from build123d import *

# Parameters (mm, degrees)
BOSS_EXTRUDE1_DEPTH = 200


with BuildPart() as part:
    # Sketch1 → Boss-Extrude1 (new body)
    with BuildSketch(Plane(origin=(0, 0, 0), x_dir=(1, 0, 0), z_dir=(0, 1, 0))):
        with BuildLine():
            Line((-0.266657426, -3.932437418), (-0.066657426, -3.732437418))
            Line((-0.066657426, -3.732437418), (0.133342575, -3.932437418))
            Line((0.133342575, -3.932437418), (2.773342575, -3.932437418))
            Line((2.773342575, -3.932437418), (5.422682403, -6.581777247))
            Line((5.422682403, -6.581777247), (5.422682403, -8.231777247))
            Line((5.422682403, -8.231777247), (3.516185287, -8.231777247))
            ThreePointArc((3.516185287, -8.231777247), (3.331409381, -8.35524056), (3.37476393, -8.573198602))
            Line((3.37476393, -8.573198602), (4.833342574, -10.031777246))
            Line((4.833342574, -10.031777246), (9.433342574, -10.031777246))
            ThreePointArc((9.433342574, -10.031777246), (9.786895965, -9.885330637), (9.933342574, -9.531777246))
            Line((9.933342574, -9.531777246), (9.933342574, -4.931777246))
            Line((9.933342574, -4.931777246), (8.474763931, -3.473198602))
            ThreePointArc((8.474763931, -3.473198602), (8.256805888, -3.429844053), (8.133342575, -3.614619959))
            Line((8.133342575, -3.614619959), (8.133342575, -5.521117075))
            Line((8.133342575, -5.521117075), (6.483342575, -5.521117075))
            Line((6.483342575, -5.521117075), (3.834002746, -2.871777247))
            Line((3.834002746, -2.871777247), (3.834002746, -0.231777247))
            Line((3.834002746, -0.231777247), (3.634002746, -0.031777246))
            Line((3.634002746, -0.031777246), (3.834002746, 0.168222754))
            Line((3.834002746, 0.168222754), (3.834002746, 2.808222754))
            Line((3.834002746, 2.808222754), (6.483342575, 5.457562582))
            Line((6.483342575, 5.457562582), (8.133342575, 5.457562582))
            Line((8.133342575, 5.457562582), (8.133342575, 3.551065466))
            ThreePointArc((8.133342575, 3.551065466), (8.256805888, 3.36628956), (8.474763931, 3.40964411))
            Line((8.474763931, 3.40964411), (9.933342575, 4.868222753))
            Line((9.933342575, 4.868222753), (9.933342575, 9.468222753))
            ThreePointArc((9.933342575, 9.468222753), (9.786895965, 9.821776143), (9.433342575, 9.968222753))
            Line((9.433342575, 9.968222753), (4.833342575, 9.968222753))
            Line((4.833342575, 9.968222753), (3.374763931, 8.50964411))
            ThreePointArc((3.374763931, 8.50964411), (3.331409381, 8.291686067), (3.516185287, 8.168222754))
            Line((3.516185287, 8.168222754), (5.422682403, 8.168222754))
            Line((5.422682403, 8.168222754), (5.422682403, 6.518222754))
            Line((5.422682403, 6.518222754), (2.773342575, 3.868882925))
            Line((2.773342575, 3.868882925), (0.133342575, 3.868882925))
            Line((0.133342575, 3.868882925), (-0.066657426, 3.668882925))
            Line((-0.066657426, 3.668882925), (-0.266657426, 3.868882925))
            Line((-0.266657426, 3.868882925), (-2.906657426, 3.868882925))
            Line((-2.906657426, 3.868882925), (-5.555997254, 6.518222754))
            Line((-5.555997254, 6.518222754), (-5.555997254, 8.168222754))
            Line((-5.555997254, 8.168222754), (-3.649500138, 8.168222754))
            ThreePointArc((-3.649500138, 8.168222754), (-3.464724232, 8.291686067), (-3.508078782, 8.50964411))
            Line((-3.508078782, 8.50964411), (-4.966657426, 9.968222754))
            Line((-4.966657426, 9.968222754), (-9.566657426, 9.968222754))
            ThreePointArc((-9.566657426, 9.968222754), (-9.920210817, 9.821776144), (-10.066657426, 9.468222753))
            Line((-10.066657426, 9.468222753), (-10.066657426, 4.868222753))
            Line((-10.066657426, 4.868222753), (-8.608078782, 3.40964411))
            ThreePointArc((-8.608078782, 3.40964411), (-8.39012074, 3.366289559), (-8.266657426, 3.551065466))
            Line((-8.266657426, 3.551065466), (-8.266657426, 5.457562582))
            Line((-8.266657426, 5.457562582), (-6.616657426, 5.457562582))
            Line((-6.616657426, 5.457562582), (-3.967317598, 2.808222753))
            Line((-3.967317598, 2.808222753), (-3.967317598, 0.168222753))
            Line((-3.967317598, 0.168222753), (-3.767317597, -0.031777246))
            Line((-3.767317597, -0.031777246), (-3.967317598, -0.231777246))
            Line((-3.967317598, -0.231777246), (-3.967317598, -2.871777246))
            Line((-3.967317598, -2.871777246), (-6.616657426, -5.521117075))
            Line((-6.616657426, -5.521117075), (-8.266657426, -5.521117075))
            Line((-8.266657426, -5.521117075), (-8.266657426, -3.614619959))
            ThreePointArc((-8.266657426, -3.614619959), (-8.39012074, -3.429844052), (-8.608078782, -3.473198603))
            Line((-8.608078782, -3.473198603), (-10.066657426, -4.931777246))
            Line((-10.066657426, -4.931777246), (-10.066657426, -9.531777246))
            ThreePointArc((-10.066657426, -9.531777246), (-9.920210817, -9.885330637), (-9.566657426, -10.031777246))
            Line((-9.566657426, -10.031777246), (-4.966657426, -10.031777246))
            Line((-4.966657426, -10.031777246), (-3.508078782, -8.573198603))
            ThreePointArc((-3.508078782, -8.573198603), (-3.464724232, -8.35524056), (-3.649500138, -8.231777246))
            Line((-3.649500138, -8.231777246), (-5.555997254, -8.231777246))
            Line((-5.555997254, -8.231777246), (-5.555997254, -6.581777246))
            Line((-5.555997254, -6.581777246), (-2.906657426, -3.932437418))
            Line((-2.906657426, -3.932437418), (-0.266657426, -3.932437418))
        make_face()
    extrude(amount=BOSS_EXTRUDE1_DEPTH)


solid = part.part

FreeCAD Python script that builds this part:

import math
import FreeCAD as App
import Part
import Sketcher

V = App.Vector
Q = App.Units.Quantity

doc = App.newDocument("Part")
body = doc.addObject("PartDesign::Body", "Body")

# Sketch on XZ plane
sketch1 = body.newObject("Sketcher::SketchObject", "Sketch")
sketch1.AttachmentSupport = (doc.getObject("XZ_Plane"), [""])
sketch1.MapMode = "FlatFace"
sketch1.addGeometry(Part.LineSegment(V(-0.27, 3.93, 0), V(-0.07, 3.73, 0)), False)
sketch1.addGeometry(Part.LineSegment(V(-0.07, 3.73, 0), V(0.13, 3.93, 0)), False)
sketch1.addGeometry(Part.LineSegment(V(0.13, 3.93, 0), V(2.77, 3.93, 0)), False)
sketch1.addGeometry(Part.LineSegment(V(2.77, 3.93, 0), V(5.42, 6.58, 0)), False)
sketch1.addGeometry(Part.LineSegment(V(5.42, 6.58, 0), V(5.42, 8.23, 0)), False)
sketch1.addGeometry(Part.LineSegment(V(5.42, 8.23, 0), V(3.52, 8.23, 0)), False)
sketch1.addGeometry(Part.ArcOfCircle(Part.Circle(V(3.52, 8.43, 0), V(0, 0, 1), 0.2), math.radians(135), math.radians(270)), False)
sketch1.addGeometry(Part.LineSegment(V(3.37, 8.57, 0), V(4.83, 10.03, 0)), False)
sketch1.addGeometry(Part.LineSegment(V(4.83, 10.03, 0), V(9.43, 10.03, 0)), False)
sketch1.addGeometry(Part.ArcOfCircle(Part.Circle(V(9.43, 9.53, 0), V(0, 0, 1), 0.5), math.radians(0), math.radians(90)), False)
sketch1.addGeometry(Part.LineSegment(V(9.93, 9.53, 0), V(9.93, 4.93, 0)), False)
sketch1.addGeometry(Part.LineSegment(V(9.93, 4.93, 0), V(8.47, 3.47, 0)), False)
sketch1.addGeometry(Part.ArcOfCircle(Part.Circle(V(8.33, 3.61, 0), V(0, 0, 1), 0.2), math.radians(-180), math.radians(-45)), False)
sketch1.addGeometry(Part.LineSegment(V(8.13, 3.61, 0), V(8.13, 5.52, 0)), False)
sketch1.addGeometry(Part.LineSegment(V(8.13, 5.52, 0), V(6.48, 5.52, 0)), False)
sketch1.addGeometry(Part.LineSegment(V(6.48, 5.52, 0), V(3.83, 2.87, 0)), False)
sketch1.addGeometry(Part.LineSegment(V(3.83, 2.87, 0), V(3.83, 0.23, 0)), False)
sketch1.addGeometry(Part.LineSegment(V(3.83, 0.23, 0), V(3.63, 0.03, 0)), False)
sketch1.addGeometry(Part.LineSegment(V(3.63, 0.03, 0), V(3.83, -0.17, 0)), False)
sketch1.addGeometry(Part.LineSegment(V(3.83, -0.17, 0), V(3.83, -2.81, 0)), False)
sketch1.addGeometry(Part.LineSegment(V(3.83, -2.81, 0), V(6.48, -5.46, 0)), False)
sketch1.addGeometry(Part.LineSegment(V(6.48, -5.46, 0), V(8.13, -5.46, 0)), False)
sketch1.addGeometry(Part.LineSegment(V(8.13, -5.46, 0), V(8.13, -3.55, 0)), False)
sketch1.addGeometry(Part.ArcOfCircle(Part.Circle(V(8.33, -3.55, 0), V(0, 0, 1), 0.2), math.radians(45), math.radians(180)), False)
sketch1.addGeometry(Part.LineSegment(V(8.47, -3.41, 0), V(9.93, -4.87, 0)), False)
sketch1.addGeometry(Part.LineSegment(V(9.93, -4.87, 0), V(9.93, -9.47, 0)), False)
sketch1.addGeometry(Part.ArcOfCircle(Part.Circle(V(9.43, -9.47, 0), V(0, 0, 1), 0.5), math.radians(-90), math.radians(0)), False)
sketch1.addGeometry(Part.LineSegment(V(9.43, -9.97, 0), V(4.83, -9.97, 0)), False)
sketch1.addGeometry(Part.LineSegment(V(4.83, -9.97, 0), V(3.37, -8.51, 0)), False)
sketch1.addGeometry(Part.ArcOfCircle(Part.Circle(V(3.52, -8.37, 0), V(0, 0, 1), 0.2), math.radians(90), math.radians(225)), False)
sketch1.addGeometry(Part.LineSegment(V(3.52, -8.17, 0), V(5.42, -8.17, 0)), False)
sketch1.addGeometry(Part.LineSegment(V(5.42, -8.17, 0), V(5.42, -6.52, 0)), False)
sketch1.addGeometry(Part.LineSegment(V(5.42, -6.52, 0), V(2.77, -3.87, 0)), False)
sketch1.addGeometry(Part.LineSegment(V(2.77, -3.87, 0), V(0.13, -3.87, 0)), False)
sketch1.addGeometry(Part.LineSegment(V(0.13, -3.87, 0), V(-0.07, -3.67, 0)), False)
sketch1.addGeometry(Part.LineSegment(V(-0.07, -3.67, 0), V(-0.27, -3.87, 0)), False)
sketch1.addGeometry(Part.LineSegment(V(-0.27, -3.87, 0), V(-2.91, -3.87, 0)), False)
sketch1.addGeometry(Part.LineSegment(V(-2.91, -3.87, 0), V(-5.56, -6.52, 0)), False)
sketch1.addGeometry(Part.LineSegment(V(-5.56, -6.52, 0), V(-5.56, -8.17, 0)), False)
sketch1.addGeometry(Part.LineSegment(V(-5.56, -8.17, 0), V(-3.65, -8.17, 0)), False)
sketch1.addGeometry(Part.ArcOfCircle(Part.Circle(V(-3.65, -8.37, 0), V(0, 0, 1), 0.2), math.radians(-45), math.radians(90)), False)
sketch1.addGeometry(Part.LineSegment(V(-3.51, -8.51, 0), V(-4.97, -9.97, 0)), False)
sketch1.addGeometry(Part.LineSegment(V(-4.97, -9.97, 0), V(-9.57, -9.97, 0)), False)
sketch1.addGeometry(Part.ArcOfCircle(Part.Circle(V(-9.57, -9.47, 0), V(0, 0, 1), 0.5), math.radians(180), math.radians(270)), False)
sketch1.addGeometry(Part.LineSegment(V(-10.07, -9.47, 0), V(-10.07, -4.87, 0)), False)
sketch1.addGeometry(Part.LineSegment(V(-10.07, -4.87, 0), V(-8.61, -3.41, 0)), False)
sketch1.addGeometry(Part.ArcOfCircle(Part.Circle(V(-8.47, -3.55, 0), V(0, 0, 1), 0.2), math.radians(0), math.radians(135)), False)
sketch1.addGeometry(Part.LineSegment(V(-8.27, -3.55, 0), V(-8.27, -5.46, 0)), False)
sketch1.addGeometry(Part.LineSegment(V(-8.27, -5.46, 0), V(-6.62, -5.46, 0)), False)
sketch1.addGeometry(Part.LineSegment(V(-6.62, -5.46, 0), V(-3.97, -2.81, 0)), False)
sketch1.addGeometry(Part.LineSegment(V(-3.97, -2.81, 0), V(-3.97, -0.17, 0)), False)
sketch1.addGeometry(Part.LineSegment(V(-3.97, -0.17, 0), V(-3.77, 0.03, 0)), False)
sketch1.addGeometry(Part.LineSegment(V(-3.77, 0.03, 0), V(-3.97, 0.23, 0)), False)
sketch1.addGeometry(Part.LineSegment(V(-3.97, 0.23, 0), V(-3.97, 2.87, 0)), False)
sketch1.addGeometry(Part.LineSegment(V(-3.97, 2.87, 0), V(-6.62, 5.52, 0)), False)
sketch1.addGeometry(Part.LineSegment(V(-6.62, 5.52, 0), V(-8.27, 5.52, 0)), False)
sketch1.addGeometry(Part.LineSegment(V(-8.27, 5.52, 0), V(-8.27, 3.61, 0)), False)
sketch1.addGeometry(Part.ArcOfCircle(Part.Circle(V(-8.47, 3.61, 0), V(0, 0, 1), 0.2), math.radians(-135), math.radians(0)), False)
sketch1.addGeometry(Part.LineSegment(V(-8.61, 3.47, 0), V(-10.07, 4.93, 0)), False)
sketch1.addGeometry(Part.LineSegment(V(-10.07, 4.93, 0), V(-10.07, 9.53, 0)), False)
sketch1.addGeometry(Part.ArcOfCircle(Part.Circle(V(-9.57, 9.53, 0), V(0, 0, 1), 0.5), math.radians(90), math.radians(180)), False)
sketch1.addGeometry(Part.LineSegment(V(-9.57, 10.03, 0), V(-4.97, 10.03, 0)), False)
sketch1.addGeometry(Part.LineSegment(V(-4.97, 10.03, 0), V(-3.51, 8.57, 0)), False)
sketch1.addGeometry(Part.ArcOfCircle(Part.Circle(V(-3.65, 8.43, 0), V(0, 0, 1), 0.2), math.radians(-90), math.radians(45)), False)
sketch1.addGeometry(Part.LineSegment(V(-3.65, 8.23, 0), V(-5.56, 8.23, 0)), False)
sketch1.addGeometry(Part.LineSegment(V(-5.56, 8.23, 0), V(-5.56, 6.58, 0)), False)
sketch1.addGeometry(Part.LineSegment(V(-5.56, 6.58, 0), V(-2.91, 3.93, 0)), False)
sketch1.addGeometry(Part.LineSegment(V(-2.91, 3.93, 0), V(-0.27, 3.93, 0)), False)
sketch1.addConstraint(Sketcher.Constraint("Coincident", 0, 2, 1, 1))
sketch1.addConstraint(Sketcher.Constraint("Coincident", 1, 2, 2, 1))
sketch1.addConstraint(Sketcher.Constraint("Coincident", 2, 2, 3, 1))
sketch1.addConstraint(Sketcher.Constraint("Coincident", 3, 2, 4, 1))
sketch1.addConstraint(Sketcher.Constraint("Coincident", 4, 2, 5, 1))
sketch1.addConstraint(Sketcher.Constraint("Tangent", 5, 2, 6, 2))
sketch1.addConstraint(Sketcher.Constraint("Tangent", 6, 1, 7, 1))
sketch1.addConstraint(Sketcher.Constraint("Coincident", 7, 2, 8, 1))
sketch1.addConstraint(Sketcher.Constraint("Tangent", 8, 2, 9, 2))
sketch1.addConstraint(Sketcher.Constraint("Tangent", 9, 1, 10, 1))
sketch1.addConstraint(Sketcher.Constraint("Coincident", 10, 2, 11, 1))
sketch1.addConstraint(Sketcher.Constraint("Tangent", 11, 2, 12, 2))
sketch1.addConstraint(Sketcher.Constraint("Tangent", 12, 1, 13, 1))
sketch1.addConstraint(Sketcher.Constraint("Coincident", 13, 2, 14, 1))
sketch1.addConstraint(Sketcher.Constraint("Coincident", 14, 2, 15, 1))
sketch1.addConstraint(Sketcher.Constraint("Coincident", 15, 2, 16, 1))
sketch1.addConstraint(Sketcher.Constraint("Coincident", 16, 2, 17, 1))
sketch1.addConstraint(Sketcher.Constraint("Coincident", 17, 2, 18, 1))
sketch1.addConstraint(Sketcher.Constraint("Coincident", 18, 2, 19, 1))
sketch1.addConstraint(Sketcher.Constraint("Coincident", 19, 2, 20, 1))
sketch1.addConstraint(Sketcher.Constraint("Coincident", 20, 2, 21, 1))
sketch1.addConstraint(Sketcher.Constraint("Coincident", 21, 2, 22, 1))
sketch1.addConstraint(Sketcher.Constraint("Tangent", 22, 2, 23, 2))
sketch1.addConstraint(Sketcher.Constraint("Tangent", 23, 1, 24, 1))
sketch1.addConstraint(Sketcher.Constraint("Coincident", 24, 2, 25, 1))
sketch1.addConstraint(Sketcher.Constraint("Tangent", 25, 2, 26, 2))
sketch1.addConstraint(Sketcher.Constraint("Tangent", 26, 1, 27, 1))
sketch1.addConstraint(Sketcher.Constraint("Coincident", 27, 2, 28, 1))
sketch1.addConstraint(Sketcher.Constraint("Tangent", 28, 2, 29, 2))
sketch1.addConstraint(Sketcher.Constraint("Tangent", 29, 1, 30, 1))
sketch1.addConstraint(Sketcher.Constraint("Coincident", 30, 2, 31, 1))
sketch1.addConstraint(Sketcher.Constraint("Coincident", 31, 2, 32, 1))
sketch1.addConstraint(Sketcher.Constraint("Coincident", 32, 2, 33, 1))
sketch1.addConstraint(Sketcher.Constraint("Coincident", 33, 2, 34, 1))
sketch1.addConstraint(Sketcher.Constraint("Coincident", 34, 2, 35, 1))
sketch1.addConstraint(Sketcher.Constraint("Coincident", 35, 2, 36, 1))
sketch1.addConstraint(Sketcher.Constraint("Coincident", 36, 2, 37, 1))
sketch1.addConstraint(Sketcher.Constraint("Coincident", 37, 2, 38, 1))
sketch1.addConstraint(Sketcher.Constraint("Coincident", 38, 2, 39, 1))
sketch1.addConstraint(Sketcher.Constraint("Tangent", 39, 2, 40, 2))
sketch1.addConstraint(Sketcher.Constraint("Tangent", 40, 1, 41, 1))
sketch1.addConstraint(Sketcher.Constraint("Coincident", 41, 2, 42, 1))
sketch1.addConstraint(Sketcher.Constraint("Tangent", 42, 2, 43, 2))
sketch1.addConstraint(Sketcher.Constraint("Tangent", 43, 1, 44, 1))
sketch1.addConstraint(Sketcher.Constraint("Coincident", 44, 2, 45, 1))
sketch1.addConstraint(Sketcher.Constraint("Tangent", 45, 2, 46, 2))
sketch1.addConstraint(Sketcher.Constraint("Tangent", 46, 1, 47, 1))
sketch1.addConstraint(Sketcher.Constraint("Coincident", 47, 2, 48, 1))
sketch1.addConstraint(Sketcher.Constraint("Coincident", 48, 2, 49, 1))
sketch1.addConstraint(Sketcher.Constraint("Coincident", 49, 2, 50, 1))
sketch1.addConstraint(Sketcher.Constraint("Coincident", 50, 2, 51, 1))
sketch1.addConstraint(Sketcher.Constraint("Coincident", 51, 2, 52, 1))
sketch1.addConstraint(Sketcher.Constraint("Coincident", 52, 2, 53, 1))
sketch1.addConstraint(Sketcher.Constraint("Coincident", 53, 2, 54, 1))
sketch1.addConstraint(Sketcher.Constraint("Coincident", 54, 2, 55, 1))
sketch1.addConstraint(Sketcher.Constraint("Coincident", 55, 2, 56, 1))
sketch1.addConstraint(Sketcher.Constraint("Tangent", 56, 2, 57, 2))
sketch1.addConstraint(Sketcher.Constraint("Tangent", 57, 1, 58, 1))
sketch1.addConstraint(Sketcher.Constraint("Coincident", 58, 2, 59, 1))
sketch1.addConstraint(Sketcher.Constraint("Tangent", 59, 2, 60, 2))
sketch1.addConstraint(Sketcher.Constraint("Tangent", 60, 1, 61, 1))
sketch1.addConstraint(Sketcher.Constraint("Coincident", 61, 2, 62, 1))
sketch1.addConstraint(Sketcher.Constraint("Tangent", 62, 2, 63, 2))
sketch1.addConstraint(Sketcher.Constraint("Tangent", 63, 1, 64, 1))
sketch1.addConstraint(Sketcher.Constraint("Coincident", 64, 2, 65, 1))
sketch1.addConstraint(Sketcher.Constraint("Coincident", 65, 2, 66, 1))
sketch1.addConstraint(Sketcher.Constraint("Coincident", 66, 2, 67, 1))
sketch1.addConstraint(Sketcher.Constraint("Coincident", 67, 2, 0, 1))
sketch1.addConstraint(Sketcher.Constraint("Horizontal", 2))
sketch1.addConstraint(Sketcher.Constraint("Vertical", 4))
sketch1.addConstraint(Sketcher.Constraint("Horizontal", 5))
sketch1.addConstraint(Sketcher.Constraint("Horizontal", 8))
sketch1.addConstraint(Sketcher.Constraint("Vertical", 10))
sketch1.addConstraint(Sketcher.Constraint("Vertical", 13))
sketch1.addConstraint(Sketcher.Constraint("Horizontal", 14))
sketch1.addConstraint(Sketcher.Constraint("Vertical", 16))
sketch1.addConstraint(Sketcher.Constraint("Vertical", 19))
sketch1.addConstraint(Sketcher.Constraint("Horizontal", 21))
sketch1.addConstraint(Sketcher.Constraint("Vertical", 22))
sketch1.addConstraint(Sketcher.Constraint("Vertical", 25))
sketch1.addConstraint(Sketcher.Constraint("Horizontal", 27))
sketch1.addConstraint(Sketcher.Constraint("Horizontal", 30))
sketch1.addConstraint(Sketcher.Constraint("Vertical", 31))
sketch1.addConstraint(Sketcher.Constraint("Horizontal", 33))
sketch1.addConstraint(Sketcher.Constraint("Horizontal", 36))
sketch1.addConstraint(Sketcher.Constraint("Vertical", 38))
sketch1.addConstraint(Sketcher.Constraint("Horizontal", 39))
sketch1.addConstraint(Sketcher.Constraint("Horizontal", 42))
sketch1.addConstraint(Sketcher.Constraint("Vertical", 44))
sketch1.addConstraint(Sketcher.Constraint("Vertical", 47))
sketch1.addConstraint(Sketcher.Constraint("Horizontal", 48))
sketch1.addConstraint(Sketcher.Constraint("Vertical", 50))
sketch1.addConstraint(Sketcher.Constraint("Vertical", 53))
sketch1.addConstraint(Sketcher.Constraint("Horizontal", 55))
sketch1.addConstraint(Sketcher.Constraint("Vertical", 56))
sketch1.addConstraint(Sketcher.Constraint("Vertical", 59))
sketch1.addConstraint(Sketcher.Constraint("Horizontal", 61))
sketch1.addConstraint(Sketcher.Constraint("Horizontal", 64))
sketch1.addConstraint(Sketcher.Constraint("Vertical", 65))
sketch1.addConstraint(Sketcher.Constraint("Horizontal", 67))
sketch1.addConstraint(Sketcher.Constraint("Equal", 6, 12))
sketch1.addConstraint(Sketcher.Constraint("Equal", 12, 23))
sketch1.addConstraint(Sketcher.Constraint("Equal", 9, 26))
sketch1.addConstraint(Sketcher.Constraint("Equal", 23, 29))
sketch1.addConstraint(Sketcher.Constraint("Equal", 29, 40))
sketch1.addConstraint(Sketcher.Constraint("Equal", 26, 43))
sketch1.addConstraint(Sketcher.Constraint("Equal", 40, 46))
sketch1.addConstraint(Sketcher.Constraint("Equal", 46, 57))
sketch1.addConstraint(Sketcher.Constraint("Equal", 43, 60))
sketch1.addConstraint(Sketcher.Constraint("Equal", 57, 63))
sketch1.addConstraint(Sketcher.Constraint("Perpendicular", 0, 1))
sketch1.addConstraint(Sketcher.Constraint("Parallel", 1, 3))
sketch1.addConstraint(Sketcher.Constraint("Parallel", 3, 7))
sketch1.addConstraint(Sketcher.Constraint("Parallel", 7, 11))
sketch1.addConstraint(Sketcher.Constraint("Parallel", 11, 15))
sketch1.addConstraint(Sketcher.Constraint("Parallel", 15, 17))
sketch1.addConstraint(Sketcher.Constraint("Perpendicular", 17, 18))
sketch1.addConstraint(Sketcher.Constraint("Parallel", 18, 20))
sketch1.addConstraint(Sketcher.Constraint("Parallel", 20, 24))
sketch1.addConstraint(Sketcher.Constraint("Parallel", 24, 28))
sketch1.addConstraint(Sketcher.Constraint("Parallel", 28, 32))
sketch1.addConstraint(Sketcher.Constraint("Parallel", 32, 34))
sketch1.addConstraint(Sketcher.Constraint("Perpendicular", 34, 35))
sketch1.addConstraint(Sketcher.Constraint("Parallel", 35, 37))
sketch1.addConstraint(Sketcher.Constraint("Parallel", 37, 41))
sketch1.addConstraint(Sketcher.Constraint("Parallel", 41, 45))
sketch1.addConstraint(Sketcher.Constraint("Parallel", 45, 49))
sketch1.addConstraint(Sketcher.Constraint("Parallel", 49, 51))
sketch1.addConstraint(Sketcher.Constraint("Perpendicular", 51, 52))
sketch1.addConstraint(Sketcher.Constraint("Parallel", 52, 54))
sketch1.addConstraint(Sketcher.Constraint("Parallel", 54, 58))
sketch1.addConstraint(Sketcher.Constraint("Parallel", 58, 62))
sketch1.addConstraint(Sketcher.Constraint("Parallel", 62, 66))
sketch1.addConstraint(Sketcher.Constraint("Horizontal", 29, 3, 40, 3))
sketch1.addConstraint(Sketcher.Constraint("Horizontal", 26, 3, 43, 3))
sketch1.addConstraint(Sketcher.Constraint("Horizontal", 23, 3, 46, 3))
sketch1.addConstraint(Sketcher.Constraint("Horizontal", 12, 3, 57, 3))
sketch1.addConstraint(Sketcher.Constraint("Horizontal", 9, 3, 60, 3))
sketch1.addConstraint(Sketcher.Constraint("Horizontal", 6, 3, 63, 3))
sketch1.addConstraint(Sketcher.Constraint("Horizontal", 33, 2, 35, 2))
sketch1.addConstraint(Sketcher.Constraint("Horizontal", 31, 2, 37, 2))
sketch1.addConstraint(Sketcher.Constraint("Horizontal", 28, 2, 40, 1))
sketch1.addConstraint(Sketcher.Constraint("Horizontal", 24, 2, 44, 2))
sketch1.addConstraint(Sketcher.Constraint("Horizontal", 21, 2, 47, 2))
sketch1.addConstraint(Sketcher.Constraint("Horizontal", 19, 2, 49, 2))
sketch1.addConstraint(Sketcher.Constraint("Horizontal", 18, 2, 50, 2))
sketch1.addConstraint(Sketcher.Constraint("Horizontal", 17, 2, 51, 2))
sketch1.addConstraint(Sketcher.Constraint("Horizontal", 16, 2, 52, 2))
sketch1.addConstraint(Sketcher.Constraint("Horizontal", 15, 2, 53, 2))
sketch1.addConstraint(Sketcher.Constraint("Horizontal", 14, 2, 54, 2))
sketch1.addConstraint(Sketcher.Constraint("Horizontal", 10, 2, 58, 2))
sketch1.addConstraint(Sketcher.Constraint("Horizontal", 3, 2, 65, 2))
sketch1.addConstraint(Sketcher.Constraint("Horizontal", 2, 2, 66, 2))
sketch1.addConstraint(Sketcher.Constraint("Vertical", 12, 3, 23, 3))
sketch1.addConstraint(Sketcher.Constraint("Vertical", 9, 3, 26, 3))
sketch1.addConstraint(Sketcher.Constraint("Vertical", 6, 3, 29, 3))
sketch1.addConstraint(Sketcher.Constraint("Vertical", 46, 3, 57, 3))
sketch1.addConstraint(Sketcher.Constraint("Vertical", 40, 3, 63, 3))
sketch1.addConstraint(Sketcher.Constraint("Vertical", 16, 2, 18, 2))
sketch1.addConstraint(Sketcher.Constraint("Vertical", 14, 2, 20, 2))
sketch1.addConstraint(Sketcher.Constraint("Vertical", 7, 2, 27, 2))
sketch1.addConstraint(Sketcher.Constraint("Vertical", 4, 2, 30, 2))
sketch1.addConstraint(Sketcher.Constraint("Vertical", 2, 2, 32, 2))
sketch1.addConstraint(Sketcher.Constraint("Vertical", 1, 2, 33, 2))
sketch1.addConstraint(Sketcher.Constraint("Vertical", 0, 2, 34, 2))
sketch1.addConstraint(Sketcher.Constraint("Vertical", 38, 2, 64, 2))
sketch1.addConstraint(Sketcher.Constraint("Equal", 33, 36))
sketch1.addConstraint(Sketcher.Constraint("Equal", 30, 39))
sketch1.addConstraint(Sketcher.Constraint("Equal", 27, 42))
sketch1.addConstraint(Sketcher.Constraint("Equal", 21, 48))
sketch1.addConstraint(Sketcher.Constraint("Equal", 55, 4))
sketch1.addConstraint(Sketcher.Constraint("Equal", 61, 10))
sketch1.addConstraint(Sketcher.Constraint("Equal", 64, 13))
sketch1.addConstraint(Sketcher.Constraint("Equal", 67, 16))
sketch1.addConstraint(Sketcher.Constraint("Equal", 16, 19))
sketch1.addConstraint(Sketcher.Constraint("Equal", 13, 22))
sketch1.addConstraint(Sketcher.Constraint("Equal", 10, 25))
sketch1.addConstraint(Sketcher.Constraint("Equal", 4, 31))
sketch1.addConstraint(Sketcher.Constraint("Equal", 7, 11))
sketch1.addConstraint(Sketcher.Constraint("Equal", 3, 15))
sketch1.addConstraint(Sketcher.Constraint("Equal", 1, 17))
sketch1.addConstraint(Sketcher.Constraint("Radius", 6, Q("0.2 mm")))
sketch1.addConstraint(Sketcher.Constraint("Radius", 9, Q("0.5 mm")))
sketch1.addConstraint(Sketcher.Constraint("DistanceX", 8, 1, 8, 2, Q("4.6 mm")))
sketch1.addConstraint(Sketcher.Constraint("DistanceX", 2, 1, 2, 2, Q("2.64 mm")))
sketch1.addConstraint(Sketcher.Constraint("DistanceX", 14, 2, 14, 1, Q("1.65 mm")))
sketch1.addConstraint(Sketcher.Constraint("DistanceX", 40, 3, -1, 1, Q("3.6495 mm")))
sketch1.addConstraint(Sketcher.Constraint("DistanceY", -1, 1, 6, 1, Q("8.573199 mm")))
sketch1.addConstraint(Sketcher.Constraint("Distance", 7, Q("2.062742 mm")))
sketch1.addConstraint(Sketcher.Constraint("DistanceX", 5, 2, 5, 1, Q("1.906497 mm")))
sketch1.addConstraint(Sketcher.Constraint("Distance", 0, Q("0.282843 mm")))
sketch1.addConstraint(Sketcher.Constraint("Distance", 3, Q("3.746732 mm")))
pad1 = body.newObject("PartDesign::Pad", "Pad")
pad1.Profile = sketch1
pad1.Length = 200
pad1.Reversed = True

doc.recompute()
